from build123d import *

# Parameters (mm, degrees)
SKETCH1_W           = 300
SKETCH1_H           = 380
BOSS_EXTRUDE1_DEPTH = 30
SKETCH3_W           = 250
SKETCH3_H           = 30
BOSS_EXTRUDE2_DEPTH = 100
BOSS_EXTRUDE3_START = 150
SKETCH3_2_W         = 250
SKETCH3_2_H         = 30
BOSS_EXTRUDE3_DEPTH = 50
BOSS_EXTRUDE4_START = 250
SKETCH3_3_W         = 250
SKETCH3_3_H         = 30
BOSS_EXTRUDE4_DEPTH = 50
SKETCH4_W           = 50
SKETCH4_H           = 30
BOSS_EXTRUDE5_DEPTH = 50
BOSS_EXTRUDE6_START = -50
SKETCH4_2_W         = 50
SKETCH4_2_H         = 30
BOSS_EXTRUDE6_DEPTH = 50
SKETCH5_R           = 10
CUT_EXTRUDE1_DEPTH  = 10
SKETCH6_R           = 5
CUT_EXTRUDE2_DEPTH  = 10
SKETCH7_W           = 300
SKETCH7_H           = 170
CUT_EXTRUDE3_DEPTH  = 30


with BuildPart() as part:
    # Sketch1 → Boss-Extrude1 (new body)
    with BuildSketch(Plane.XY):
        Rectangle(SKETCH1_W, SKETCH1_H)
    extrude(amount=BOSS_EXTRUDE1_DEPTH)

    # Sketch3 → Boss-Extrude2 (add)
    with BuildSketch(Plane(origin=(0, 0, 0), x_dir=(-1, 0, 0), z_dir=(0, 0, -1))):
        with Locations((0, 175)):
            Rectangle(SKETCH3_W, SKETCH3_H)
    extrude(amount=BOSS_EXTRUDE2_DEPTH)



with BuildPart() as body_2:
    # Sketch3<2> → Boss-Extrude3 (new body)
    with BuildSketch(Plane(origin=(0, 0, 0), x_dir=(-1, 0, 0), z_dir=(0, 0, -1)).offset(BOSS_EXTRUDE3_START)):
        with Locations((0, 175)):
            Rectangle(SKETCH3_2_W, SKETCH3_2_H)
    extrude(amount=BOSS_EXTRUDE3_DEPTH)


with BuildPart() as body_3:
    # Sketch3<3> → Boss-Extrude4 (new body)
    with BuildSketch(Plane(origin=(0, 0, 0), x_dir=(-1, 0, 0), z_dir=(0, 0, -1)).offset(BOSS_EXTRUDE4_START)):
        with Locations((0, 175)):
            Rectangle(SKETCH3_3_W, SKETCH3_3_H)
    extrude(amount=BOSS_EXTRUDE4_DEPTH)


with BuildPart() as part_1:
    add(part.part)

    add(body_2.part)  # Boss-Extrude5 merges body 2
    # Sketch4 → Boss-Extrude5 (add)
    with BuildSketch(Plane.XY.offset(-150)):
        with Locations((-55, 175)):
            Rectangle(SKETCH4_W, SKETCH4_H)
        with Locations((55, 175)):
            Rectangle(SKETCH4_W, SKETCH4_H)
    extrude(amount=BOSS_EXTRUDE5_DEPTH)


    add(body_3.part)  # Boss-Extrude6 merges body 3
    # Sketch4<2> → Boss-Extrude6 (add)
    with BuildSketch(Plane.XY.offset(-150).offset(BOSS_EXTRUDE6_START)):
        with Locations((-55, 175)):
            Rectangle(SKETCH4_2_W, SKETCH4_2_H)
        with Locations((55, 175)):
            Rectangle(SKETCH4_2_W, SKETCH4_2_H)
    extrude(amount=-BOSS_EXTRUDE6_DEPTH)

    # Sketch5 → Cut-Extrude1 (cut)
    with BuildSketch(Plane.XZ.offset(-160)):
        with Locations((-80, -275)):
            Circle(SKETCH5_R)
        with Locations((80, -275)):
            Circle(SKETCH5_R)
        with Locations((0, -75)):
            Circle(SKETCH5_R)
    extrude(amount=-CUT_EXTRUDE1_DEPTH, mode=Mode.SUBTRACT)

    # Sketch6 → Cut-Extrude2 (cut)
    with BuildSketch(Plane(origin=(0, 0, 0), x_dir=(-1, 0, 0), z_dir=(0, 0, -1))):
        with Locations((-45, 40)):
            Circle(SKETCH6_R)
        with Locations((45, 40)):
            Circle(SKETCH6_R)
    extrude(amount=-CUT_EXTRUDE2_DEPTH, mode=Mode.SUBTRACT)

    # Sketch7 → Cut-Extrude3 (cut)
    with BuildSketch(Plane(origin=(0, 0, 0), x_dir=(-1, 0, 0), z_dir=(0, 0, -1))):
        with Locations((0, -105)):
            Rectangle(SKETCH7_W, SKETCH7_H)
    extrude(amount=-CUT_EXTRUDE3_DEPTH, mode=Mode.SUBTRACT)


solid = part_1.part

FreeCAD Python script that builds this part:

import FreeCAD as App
import Part
import Sketcher
from FreeCAD import Vector

doc = App.newDocument("Part")
params = doc.addObject("Spreadsheet::Sheet", "Params")
for row, (alias, value) in enumerate([
    ("sketch1_width", "300 mm"),
    ("sketch1_height", "380 mm"),
    ("pad1_length", "30 mm"),
    ("sketch2_width", "250 mm"),
    ("sketch2_height", "30 mm"),
    ("pad2_length", "100 mm"),
    ("sketch3_width", "250 mm"),
    ("sketch3_height", "30 mm"),
    ("pad3_length", "50 mm"),
    ("sketch4_width", "250 mm"),
    ("sketch4_height", "30 mm"),
    ("pad4_length", "50 mm"),
    ("sketch5_width", "50 mm"),
    ("sketch5_height", "30 mm"),
    ("pad5_length", "50 mm"),
    ("sketch6_width", "50 mm"),
    ("sketch6_height", "30 mm"),
    ("pad6_length", "50 mm"),
    ("sketch7_diameter", "20 mm"),
    ("pocket1_length", "10 mm"),
    ("sketch8_diameter", "10 mm"),
    ("pocket2_length", "10 mm"),
    ("sketch9_width", "300 mm"),
    ("sketch9_height", "170 mm"),
    ("pocket3_length", "30 mm"),
], start=1):
    params.set(f"A{row}", alias)
    params.set(f"B{row}", "=" + value)
    params.setAlias(f"B{row}", alias)

body = doc.addObject("PartDesign::Body", "Body")

sketch1 = body.newObject("Sketcher::SketchObject", "Sketch")
sketch1.AttachmentSupport = (doc.getObject("XY_Plane"), [""])
sketch1.MapMode = "FlatFace"
sketch1.addGeometry(Part.LineSegment(Vector(-150, 190, 0), Vector(-150, -190, 0)), False)
sketch1.addGeometry(Part.LineSegment(Vector(-150, -190, 0), Vector(150, -190, 0)), False)
sketch1.addGeometry(Part.LineSegment(Vector(150, -190, 0), Vector(150, 190, 0)), False)
sketch1.addGeometry(Part.LineSegment(Vector(150, 190, 0), Vector(-150, 190, 0)), False)
sketch1.addConstraint(Sketcher.Constraint("Coincident", 0, 2, 1, 1))
sketch1.addConstraint(Sketcher.Constraint("Coincident", 1, 2, 2, 1))
sketch1.addConstraint(Sketcher.Constraint("Coincident", 2, 2, 3, 1))
sketch1.addConstraint(Sketcher.Constraint("Coincident", 3, 2, 0, 1))
sketch1.addConstraint(Sketcher.Constraint("Vertical", 0))
sketch1.addConstraint(Sketcher.Constraint("Horizontal", 1))
sketch1.addConstraint(Sketcher.Constraint("Vertical", 2))
sketch1.addConstraint(Sketcher.Constraint("Horizontal", 3))
sketch1.addConstraint(Sketcher.Constraint("Symmetric", 0, 2, 2, 2, -1, 1))
sketch1.addConstraint(Sketcher.Constraint("DistanceX", 1, 1, 1, 2, 300.0))
sketch1.addConstraint(Sketcher.Constraint("DistanceY", 0, 2, 0, 1, 380.0))
sketch1.setExpression("Constraints[9]", "Params.sketch1_width")
sketch1.setExpression("Constraints[10]", "Params.sketch1_height")
pad1 = body.newObject("PartDesign::Pad", "Pad")
pad1.Profile = sketch1
pad1.setExpression("Length", "Params.pad1_length")

sketch2 = body.newObject("Sketcher::SketchObject", "Sketch001")
sketch2.AttachmentSupport = (doc.getObject("XY_Plane"), [""])
sketch2.MapMode = "FlatFace"
sketch2.addGeometry(Part.LineSegment(Vector(125, 190, 0), Vector(125, 160, 0)), False)
sketch2.addGeometry(Part.LineSegment(Vector(125, 160, 0), Vector(-125, 160, 0)), False)
sketch2.addGeometry(Part.LineSegment(Vector(-125, 160, 0), Vector(-125, 190, 0)), False)
sketch2.addGeometry(Part.LineSegment(Vector(-125, 190, 0), Vector(125, 190, 0)), False)
sketch2.addConstraint(Sketcher.Constraint("Coincident", 0, 2, 1, 1))
sketch2.addConstraint(Sketcher.Constraint("Coincident", 1, 2, 2, 1))
sketch2.addConstraint(Sketcher.Constraint("Coincident", 2, 2, 3, 1))
sketch2.addConstraint(Sketcher.Constraint("Coincident", 3, 2, 0, 1))
sketch2.addConstraint(Sketcher.Constraint("Vertical", 0))
sketch2.addConstraint(Sketcher.Constraint("Horizontal", 1))
sketch2.addConstraint(Sketcher.Constraint("Vertical", 2))
sketch2.addConstraint(Sketcher.Constraint("Horizontal", 3))
sketch2.addConstraint(Sketcher.Constraint("DistanceX", 1, 2, 1, 1, 250.0))
sketch2.addConstraint(Sketcher.Constraint("DistanceY", 0, 2, 0, 1, 30.0))
sketch2.addConstraint(Sketcher.Constraint("DistanceX", -1, 1, 0, 2, 125.0))
sketch2.addConstraint(Sketcher.Constraint("DistanceY", -1, 1, 0, 2, 160.0))
sketch2.setExpression("Constraints[8]", "Params.sketch2_width")
sketch2.setExpression("Constraints[9]", "Params.sketch2_height")
pad2 = body.newObject("PartDesign::Pad", "Pad001")
pad2.Profile = sketch2
pad2.setExpression("Length", "Params.pad2_length")
pad2.Reversed = True
body2 = doc.addObject("PartDesign::Body", "Body001")

sketch3 = body2.newObject("Sketcher::SketchObject", "Sketch002")
sketch3.AttachmentSupport = (doc.getObject("XY_Plane001"), [""])
sketch3.MapMode = "FlatFace"
sketch3.AttachmentOffset = App.Placement(Vector(0, 0, -150), App.Rotation())
sketch3.addGeometry(Part.LineSegment(Vector(125, 190, 0), Vector(125, 160, 0)), False)
sketch3.addGeometry(Part.LineSegment(Vector(125, 160, 0), Vector(-125, 160, 0)), False)
sketch3.addGeometry(Part.LineSegment(Vector(-125, 160, 0), Vector(-125, 190, 0)), False)
sketch3.addGeometry(Part.LineSegment(Vector(-125, 190, 0), Vector(125, 190, 0)), False)
sketch3.addConstraint(Sketcher.Constraint("Coincident", 0, 2, 1, 1))
sketch3.addConstraint(Sketcher.Constraint("Coincident", 1, 2, 2, 1))
sketch3.addConstraint(Sketcher.Constraint("Coincident", 2, 2, 3, 1))
sketch3.addConstraint(Sketcher.Constraint("Coincident", 3, 2, 0, 1))
sketch3.addConstraint(Sketcher.Constraint("Vertical", 0))
sketch3.addConstraint(Sketcher.Constraint("Horizontal", 1))
sketch3.addConstraint(Sketcher.Constraint("Vertical", 2))
sketch3.addConstraint(Sketcher.Constraint("Horizontal", 3))
sketch3.addConstraint(Sketcher.Constraint("DistanceX", 1, 2, 1, 1, 250.0))
sketch3.addConstraint(Sketcher.Constraint("DistanceY", 0, 2, 0, 1, 30.0))
sketch3.addConstraint(Sketcher.Constraint("DistanceX", -1, 1, 0, 2, 125.0))
sketch3.addConstraint(Sketcher.Constraint("DistanceY", -1, 1, 0, 2, 160.0))
sketch3.setExpression("Constraints[8]", "Params.sketch3_width")
sketch3.setExpression("Constraints[9]", "Params.sketch3_height")
pad3 = body2.newObject("PartDesign::Pad", "Pad002")
pad3.Profile = sketch3
pad3.setExpression("Length", "Params.pad3_length")
pad3.Reversed = True
body3 = doc.addObject("PartDesign::Body", "Body002")

sketch4 = body3.newObject("Sketcher::SketchObject", "Sketch003")
sketch4.AttachmentSupport = (doc.getObject("XY_Plane002"), [""])
sketch4.MapMode = "FlatFace"
sketch4.AttachmentOffset = App.Placement(Vector(0, 0, -250), App.Rotation())
sketch4.addGeometry(Part.LineSegment(Vector(125, 190, 0), Vector(125, 160, 0)), False)
sketch4.addGeometry(Part.LineSegment(Vector(125, 160, 0), Vector(-125, 160, 0)), False)
sketch4.addGeometry(Part.LineSegment(Vector(-125, 160, 0), Vector(-125, 190, 0)), False)
sketch4.addGeometry(Part.LineSegment(Vector(-125, 190, 0), Vector(125, 190, 0)), False)
sketch4.addConstraint(Sketcher.Constraint("Coincident", 0, 2, 1, 1))
sketch4.addConstraint(Sketcher.Constraint("Coincident", 1, 2, 2, 1))
sketch4.addConstraint(Sketcher.Constraint("Coincident", 2, 2, 3, 1))
sketch4.addConstraint(Sketcher.Constraint("Coincident", 3, 2, 0, 1))
sketch4.addConstraint(Sketcher.Constraint("Vertical", 0))
sketch4.addConstraint(Sketcher.Constraint("Horizontal", 1))
sketch4.addConstraint(Sketcher.Constraint("Vertical", 2))
sketch4.addConstraint(Sketcher.Constraint("Horizontal", 3))
sketch4.addConstraint(Sketcher.Constraint("DistanceX", 1, 2, 1, 1, 250.0))
sketch4.addConstraint(Sketcher.Constraint("DistanceY", 0, 2, 0, 1, 30.0))
sketch4.addConstraint(Sketcher.Constraint("DistanceX", -1, 1, 0, 2, 125.0))
sketch4.addConstraint(Sketcher.Constraint("DistanceY", -1, 1, 0, 2, 160.0))
sketch4.setExpression("Constraints[8]", "Params.sketch4_width")
sketch4.setExpression("Constraints[9]", "Params.sketch4_height")
pad4 = body3.newObject("PartDesign::Pad", "Pad003")
pad4.Profile = sketch4
pad4.setExpression("Length", "Params.pad4_length")
pad4.Reversed = True
body.AllowCompound = True
doc.recompute()

boolean = body.newObject("PartDesign::Boolean", "Boolean")
boolean.Type = "Fuse"
boolean.addObjects([body2])

sketch5 = body.newObject("Sketcher::SketchObject", "Sketch004")
sketch5.AttachmentSupport = (doc.getObject("XY_Plane"), [""])
sketch5.MapMode = "FlatFace"
sketch5.AttachmentOffset = App.Placement(Vector(0, 0, -150), App.Rotation())
sketch5.addGeometry(Part.LineSegment(Vector(-80, 190, 0), Vector(-80, 160, 0)), False)
sketch5.addGeometry(Part.LineSegment(Vector(-80, 160, 0), Vector(-30, 160, 0)), False)
sketch5.addGeometry(Part.LineSegment(Vector(-30, 160, 0), Vector(-30, 190, 0)), False)
sketch5.addGeometry(Part.LineSegment(Vector(-30, 190, 0), Vector(-80, 190, 0)), False)
sketch5.addGeometry(Part.LineSegment(Vector(30, 190, 0), Vector(30, 160, 0)), False)
sketch5.addGeometry(Part.LineSegment(Vector(30, 160, 0), Vector(80, 160, 0)), False)
sketch5.addGeometry(Part.LineSegment(Vector(80, 160, 0), Vector(80, 190, 0)), False)
sketch5.addGeometry(Part.LineSegment(Vector(80, 190, 0), Vector(30, 190, 0)), False)
sketch5.addConstraint(Sketcher.Constraint("Coincident", 0, 2, 1, 1))
sketch5.addConstraint(Sketcher.Constraint("Coincident", 1, 2, 2, 1))
sketch5.addConstraint(Sketcher.Constraint("Coincident", 2, 2, 3, 1))
sketch5.addConstraint(Sketcher.Constraint("Coincident", 3, 2, 0, 1))
sketch5.addConstraint(Sketcher.Constraint("Coincident", 4, 2, 5, 1))
sketch5.addConstraint(Sketcher.Constraint("Coincident", 5, 2, 6, 1))
sketch5.addConstraint(Sketcher.Constraint("Coincident", 6, 2, 7, 1))
sketch5.addConstraint(Sketcher.Constraint("Coincident", 7, 2, 4, 1))
sketch5.addConstraint(Sketcher.Constraint("Vertical", 0))
sketch5.addConstraint(Sketcher.Constraint("Horizontal", 1))
sketch5.addConstraint(Sketcher.Constraint("Vertical", 2))
sketch5.addConstraint(Sketcher.Constraint("Horizontal", 3))
sketch5.addConstraint(Sketcher.Constraint("Vertical", 4))
sketch5.addConstraint(Sketcher.Constraint("Horizontal", 5))
sketch5.addConstraint(Sketcher.Constraint("Vertical", 6))
sketch5.addConstraint(Sketcher.Constraint("Horizontal", 7))
sketch5.addConstraint(Sketcher.Constraint("Symmetric", 1, 2, 4, 2, -2))
sketch5.addConstraint(Sketcher.Constraint("Symmetric", 3, 2, 6, 2, -2))
sketch5.addConstraint(Sketcher.Constraint("DistanceX", 1, 1, 1, 2, 50.0))
sketch5.addConstraint(Sketcher.Constraint("DistanceY", 0, 2, 0, 1, 30.0))
sketch5.addConstraint(Sketcher.Constraint("DistanceX", 0, 2, -1, 1, 80.0))
sketch5.addConstraint(Sketcher.Constraint("DistanceY", -1, 1, 0, 2, 160.0))
sketch5.setExpression("Constraints[18]", "Params.sketch5_width")
sketch5.setExpression("Constraints[19]", "Params.sketch5_height")
pad5 = body.newObject("PartDesign::Pad", "Pad004")
pad5.Profile = sketch5
pad5.setExpression("Length", "Params.pad5_length")
doc.recompute()

boolean2 = body.newObject("PartDesign::Boolean", "Boolean001")
boolean2.Type = "Fuse"
boolean2.addObjects([body3])

sketch6 = body.newObject("Sketcher::SketchObject", "Sketch005")
sketch6.AttachmentSupport = (doc.getObject("XY_Plane"), [""])
sketch6.MapMode = "FlatFace"
sketch6.AttachmentOffset = App.Placement(Vector(0, 0, -200), App.Rotation())
sketch6.addGeometry(Part.LineSegment(Vector(-80, 190, 0), Vector(-80, 160, 0)), False)
sketch6.addGeometry(Part.LineSegment(Vector(-80, 160, 0), Vector(-30, 160, 0)), False)
sketch6.addGeometry(Part.LineSegment(Vector(-30, 160, 0), Vector(-30, 190, 0)), False)
sketch6.addGeometry(Part.LineSegment(Vector(-30, 190, 0), Vector(-80, 190, 0)), False)
sketch6.addGeometry(Part.LineSegment(Vector(30, 190, 0), Vector(30, 160, 0)), False)
sketch6.addGeometry(Part.LineSegment(Vector(30, 160, 0), Vector(80, 160, 0)), False)
sketch6.addGeometry(Part.LineSegment(Vector(80, 160, 0), Vector(80, 190, 0)), False)
sketch6.addGeometry(Part.LineSegment(Vector(80, 190, 0), Vector(30, 190, 0)), False)
sketch6.addConstraint(Sketcher.Constraint("Coincident", 0, 2, 1, 1))
sketch6.addConstraint(Sketcher.Constraint("Coincident", 1, 2, 2, 1))
sketch6.addConstraint(Sketcher.Constraint("Coincident", 2, 2, 3, 1))
sketch6.addConstraint(Sketcher.Constraint("Coincident", 3, 2, 0, 1))
sketch6.addConstraint(Sketcher.Constraint("Coincident", 4, 2, 5, 1))
sketch6.addConstraint(Sketcher.Constraint("Coincident", 5, 2, 6, 1))
sketch6.addConstraint(Sketcher.Constraint("Coincident", 6, 2, 7, 1))
sketch6.addConstraint(Sketcher.Constraint("Coincident", 7, 2, 4, 1))
sketch6.addConstraint(Sketcher.Constraint("Vertical", 0))
sketch6.addConstraint(Sketcher.Constraint("Horizontal", 1))
sketch6.addConstraint(Sketcher.Constraint("Vertical", 2))
sketch6.addConstraint(Sketcher.Constraint("Horizontal", 3))
sketch6.addConstraint(Sketcher.Constraint("Vertical", 4))
sketch6.addConstraint(Sketcher.Constraint("Horizontal", 5))
sketch6.addConstraint(Sketcher.Constraint("Vertical", 6))
sketch6.addConstraint(Sketcher.Constraint("Horizontal", 7))
sketch6.addConstraint(Sketcher.Constraint("Symmetric", 1, 2, 4, 2, -2))
sketch6.addConstraint(Sketcher.Constraint("Symmetric", 3, 2, 6, 2, -2))
sketch6.addConstraint(Sketcher.Constraint("DistanceX", 1, 1, 1, 2, 50.0))
sketch6.addConstraint(Sketcher.Constraint("DistanceY", 0, 2, 0, 1, 30.0))
sketch6.addConstraint(Sketcher.Constraint("DistanceX", 0, 2, -1, 1, 80.0))
sketch6.addConstraint(Sketcher.Constraint("DistanceY", -1, 1, 0, 2, 160.0))
sketch6.setExpression("Constraints[18]", "Params.sketch6_width")
sketch6.setExpression("Constraints[19]", "Params.sketch6_height")
pad6 = body.newObject("PartDesign::Pad", "Pad005")
pad6.Profile = sketch6
pad6.setExpression("Length", "Params.pad6_length")
pad6.Reversed = True

sketch7 = body.newObject("Sketcher::SketchObject", "Sketch006")
sketch7.AttachmentSupport = (doc.getObject("XZ_Plane"), [""])
sketch7.MapMode = "FlatFace"
sketch7.AttachmentOffset = App.Placement(Vector(0, 0, -160), App.Rotation())
sketch7.addGeometry(Part.Circle(Vector(-80, -275, 0), Vector(0, 0, 1), 10), False)
sketch7.addGeometry(Part.Circle(Vector(80, -275, 0), Vector(0, 0, 1), 10), False)
sketch7.addGeometry(Part.Circle(Vector(0, -75, 0), Vector(0, 0, 1), 10), False)
sketch7.addConstraint(Sketcher.Constraint("Equal", 0, 1))
sketch7.addConstraint(Sketcher.Constraint("Equal", 1, 2))
sketch7.addConstraint(Sketcher.Constraint("Symmetric", 0, 3, 1, 3, -2))
sketch7.addConstraint(Sketcher.Constraint("PointOnObject", 2, 3, -2))
sketch7.addConstraint(Sketcher.Constraint("Diameter", 0, 20.0))
sketch7.addConstraint(Sketcher.Constraint("DistanceX", 0, 3, -1, 1, 80.0))
sketch7.addConstraint(Sketcher.Constraint("DistanceY", 0, 3, -1, 1, 275.0))
sketch7.addConstraint(Sketcher.Constraint("DistanceY", 2, 3, -1, 1, 75.0))
sketch7.setExpression("Constraints[4]", "Params.sketch7_diameter")
pocket1 = body.newObject("PartDesign::Pocket", "Pocket")
pocket1.Profile = sketch7
pocket1.setExpression("Length", "Params.pocket1_length")

sketch8 = body.newObject("Sketcher::SketchObject", "Sketch007")
sketch8.AttachmentSupport = (doc.getObject("XY_Plane"), [""])
sketch8.MapMode = "FlatFace"
sketch8.addGeometry(Part.Circle(Vector(45, 40, 0), Vector(0, 0, 1), 5), False)
sketch8.addGeometry(Part.Circle(Vector(-45, 40, 0), Vector(0, 0, 1), 5), False)
sketch8.addConstraint(Sketcher.Constraint("Equal", 0, 1))
sketch8.addConstraint(Sketcher.Constraint("Symmetric", 0, 3, 1, 3, -2))
sketch8.addConstraint(Sketcher.Constraint("Diameter", 0, 10.0))
sketch8.addConstraint(Sketcher.Constraint("DistanceX", -1, 1, 0, 3, 45.0))
sketch8.addConstraint(Sketcher.Constraint("DistanceY", -1, 1, 0, 3, 40.0))
sketch8.setExpression("Constraints[2]", "Params.sketch8_diameter")
pocket2 = body.newObject("PartDesign::Pocket", "Pocket001")
pocket2.Profile = sketch8
pocket2.setExpression("Length", "Params.pocket2_length")
pocket2.Reversed = True

sketch9 = body.newObject("Sketcher::SketchObject", "Sketch008")
sketch9.AttachmentSupport = (doc.getObject("XY_Plane"), [""])
sketch9.MapMode = "FlatFace"
sketch9.addGeometry(Part.LineSegment(Vector(150, -20, 0), Vector(150, -190, 0)), False)
sketch9.addGeometry(Part.LineSegment(Vector(150, -190, 0), Vector(-150, -190, 0)), False)
sketch9.addGeometry(Part.LineSegment(Vector(-150, -190, 0), Vector(-150, -20, 0)), False)
sketch9.addGeometry(Part.LineSegment(Vector(-150, -20, 0), Vector(150, -20, 0)), False)
sketch9.addConstraint(Sketcher.Constraint("Coincident", 0, 2, 1, 1))
sketch9.addConstraint(Sketcher.Constraint("Coincident", 1, 2, 2, 1))
sketch9.addConstraint(Sketcher.Constraint("Coincident", 2, 2, 3, 1))
sketch9.addConstraint(Sketcher.Constraint("Coincident", 3, 2, 0, 1))
sketch9.addConstraint(Sketcher.Constraint("Vertical", 0))
sketch9.addConstraint(Sketcher.Constraint("Horizontal", 1))
sketch9.addConstraint(Sketcher.Constraint("Vertical", 2))
sketch9.addConstraint(Sketcher.Constraint("Horizontal", 3))
sketch9.addConstraint(Sketcher.Constraint("DistanceX", 1, 2, 1, 1, 300.0))
sketch9.addConstraint(Sketcher.Constraint("DistanceY", 0, 2, 0, 1, 170.0))
sketch9.addConstraint(Sketcher.Constraint("DistanceX", -1, 1, 0, 2, 150.0))
sketch9.addConstraint(Sketcher.Constraint("DistanceY", 0, 2, -1, 1, 190.0))
sketch9.setExpression("Constraints[8]", "Params.sketch9_width")
sketch9.setExpression("Constraints[9]", "Params.sketch9_height")
pocket3 = body.newObject("PartDesign::Pocket", "Pocket002")
pocket3.Profile = sketch9
pocket3.setExpression("Length", "Params.pocket3_length")
pocket3.Reversed = True

doc.recompute()
